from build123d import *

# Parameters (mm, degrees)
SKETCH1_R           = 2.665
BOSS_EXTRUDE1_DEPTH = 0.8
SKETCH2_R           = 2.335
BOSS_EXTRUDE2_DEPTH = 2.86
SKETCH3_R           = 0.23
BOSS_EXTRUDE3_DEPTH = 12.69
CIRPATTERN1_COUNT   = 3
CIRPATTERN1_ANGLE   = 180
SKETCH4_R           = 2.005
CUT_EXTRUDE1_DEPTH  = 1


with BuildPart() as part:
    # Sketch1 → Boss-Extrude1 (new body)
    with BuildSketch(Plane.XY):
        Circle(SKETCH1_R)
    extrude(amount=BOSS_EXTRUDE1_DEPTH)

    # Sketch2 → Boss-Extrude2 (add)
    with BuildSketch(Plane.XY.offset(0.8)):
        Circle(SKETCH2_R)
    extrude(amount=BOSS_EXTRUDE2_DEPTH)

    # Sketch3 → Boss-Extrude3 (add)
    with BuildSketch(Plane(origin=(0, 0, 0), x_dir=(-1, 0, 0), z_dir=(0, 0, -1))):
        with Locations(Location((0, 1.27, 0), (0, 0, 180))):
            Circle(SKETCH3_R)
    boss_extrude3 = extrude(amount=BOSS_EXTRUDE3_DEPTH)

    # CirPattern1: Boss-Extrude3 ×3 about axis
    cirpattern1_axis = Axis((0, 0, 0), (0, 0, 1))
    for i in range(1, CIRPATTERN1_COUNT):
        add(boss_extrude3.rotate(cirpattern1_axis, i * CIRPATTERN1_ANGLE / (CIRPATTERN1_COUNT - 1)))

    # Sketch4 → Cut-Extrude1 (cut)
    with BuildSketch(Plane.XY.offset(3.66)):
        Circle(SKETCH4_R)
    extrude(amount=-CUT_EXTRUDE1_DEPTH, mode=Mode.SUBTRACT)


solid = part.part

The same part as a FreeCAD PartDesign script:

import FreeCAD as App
import Part
import Sketcher
from FreeCAD import Vector
Q = App.Units.Quantity

doc = App.newDocument("Part")
body = doc.addObject("PartDesign::Body", "Body")

sketch1 = doc.addObject("Sketcher::SketchObject", "Sketch")
body.addObject(sketch1)
sketch1.AttachmentSupport = (doc.XY_Plane, [""])
sketch1.MapMode = "FlatFace"
sketch1.addGeometry(Part.Circle(Vector(0, 0, 0), Vector(0, 0, 1), 2.7), False)
sketch1.addConstraint(Sketcher.Constraint("Coincident", 0, 3, -1, 1))
sketch1.addConstraint(Sketcher.Constraint("Diameter", 0, Q("5.33 mm")))
pad1 = doc.addObject("PartDesign::Pad", "Pad")
body.addObject(pad1)
pad1.Profile = sketch1
pad1.Length = 0.8

sketch2 = doc.addObject("Sketcher::SketchObject", "Sketch001")
body.addObject(sketch2)
sketch2.AttachmentSupport = (doc.XY_Plane, [""])
sketch2.MapMode = "FlatFace"
sketch2.AttachmentOffset = App.Placement(Vector(0, 0, 0.8), App.Rotation())
sketch2.addGeometry(Part.Circle(Vector(0, 0, 0), Vector(0, 0, 1), 2.3), False)
sketch2.addConstraint(Sketcher.Constraint("Coincident", 0, 3, -1, 1))
sketch2.addConstraint(Sketcher.Constraint("Diameter", 0, Q("4.67 mm")))
pad2 = doc.addObject("PartDesign::Pad", "Pad001")
body.addObject(pad2)
pad2.Profile = sketch2
pad2.Length = 2.86

sketch3 = doc.addObject("Sketcher::SketchObject", "Sketch002")
body.addObject(sketch3)
sketch3.AttachmentSupport = (doc.XY_Plane, [""])
sketch3.MapMode = "FlatFace"
sketch3.addGeometry(Part.Circle(Vector(0, 1.27, 0), Vector(0, 0, 1), 0.23), False)
sketch3.addConstraint(Sketcher.Constraint("PointOnObject", 0, 3, -2))
sketch3.addConstraint(Sketcher.Constraint("Diameter", 0, Q("0.46 mm")))
sketch3.addConstraint(Sketcher.Constraint("DistanceY", -1, 1, 0, 3, Q("1.27 mm")))
pad3 = doc.addObject("PartDesign::Pad", "Pad002")
body.addObject(pad3)
pad3.Profile = sketch3
pad3.Length = 12.69
pad3.Reversed = True
doc.recompute()

polarpattern = doc.addObject("PartDesign::PolarPattern", "PolarPattern")
body.addObject(polarpattern)
polarpattern.Originals = [pad3]
polarpattern.Axis = (doc.Z_Axis, [""])
polarpattern.Angle = 180
polarpattern.Occurrences = 3
body.Tip = polarpattern

sketch4 = doc.addObject("Sketcher::SketchObject", "Sketch003")
body.addObject(sketch4)
sketch4.AttachmentSupport = (doc.XY_Plane, [""])
sketch4.MapMode = "FlatFace"
sketch4.AttachmentOffset = App.Placement(Vector(0, 0, 3.66), App.Rotation())
sketch4.addGeometry(Part.Circle(Vector(0, 0, 0), Vector(0, 0, 1), 2), False)
sketch4.addConstraint(Sketcher.Constraint("Coincident", 0, 3, -1, 1))
sketch4.addConstraint(Sketcher.Constraint("Diameter", 0, Q("4.01 mm")))
pocket1 = doc.addObject("PartDesign::Pocket", "Pocket")
body.addObject(pocket1)
pocket1.Profile = sketch4
pocket1.Length = 1

doc.recompute()
